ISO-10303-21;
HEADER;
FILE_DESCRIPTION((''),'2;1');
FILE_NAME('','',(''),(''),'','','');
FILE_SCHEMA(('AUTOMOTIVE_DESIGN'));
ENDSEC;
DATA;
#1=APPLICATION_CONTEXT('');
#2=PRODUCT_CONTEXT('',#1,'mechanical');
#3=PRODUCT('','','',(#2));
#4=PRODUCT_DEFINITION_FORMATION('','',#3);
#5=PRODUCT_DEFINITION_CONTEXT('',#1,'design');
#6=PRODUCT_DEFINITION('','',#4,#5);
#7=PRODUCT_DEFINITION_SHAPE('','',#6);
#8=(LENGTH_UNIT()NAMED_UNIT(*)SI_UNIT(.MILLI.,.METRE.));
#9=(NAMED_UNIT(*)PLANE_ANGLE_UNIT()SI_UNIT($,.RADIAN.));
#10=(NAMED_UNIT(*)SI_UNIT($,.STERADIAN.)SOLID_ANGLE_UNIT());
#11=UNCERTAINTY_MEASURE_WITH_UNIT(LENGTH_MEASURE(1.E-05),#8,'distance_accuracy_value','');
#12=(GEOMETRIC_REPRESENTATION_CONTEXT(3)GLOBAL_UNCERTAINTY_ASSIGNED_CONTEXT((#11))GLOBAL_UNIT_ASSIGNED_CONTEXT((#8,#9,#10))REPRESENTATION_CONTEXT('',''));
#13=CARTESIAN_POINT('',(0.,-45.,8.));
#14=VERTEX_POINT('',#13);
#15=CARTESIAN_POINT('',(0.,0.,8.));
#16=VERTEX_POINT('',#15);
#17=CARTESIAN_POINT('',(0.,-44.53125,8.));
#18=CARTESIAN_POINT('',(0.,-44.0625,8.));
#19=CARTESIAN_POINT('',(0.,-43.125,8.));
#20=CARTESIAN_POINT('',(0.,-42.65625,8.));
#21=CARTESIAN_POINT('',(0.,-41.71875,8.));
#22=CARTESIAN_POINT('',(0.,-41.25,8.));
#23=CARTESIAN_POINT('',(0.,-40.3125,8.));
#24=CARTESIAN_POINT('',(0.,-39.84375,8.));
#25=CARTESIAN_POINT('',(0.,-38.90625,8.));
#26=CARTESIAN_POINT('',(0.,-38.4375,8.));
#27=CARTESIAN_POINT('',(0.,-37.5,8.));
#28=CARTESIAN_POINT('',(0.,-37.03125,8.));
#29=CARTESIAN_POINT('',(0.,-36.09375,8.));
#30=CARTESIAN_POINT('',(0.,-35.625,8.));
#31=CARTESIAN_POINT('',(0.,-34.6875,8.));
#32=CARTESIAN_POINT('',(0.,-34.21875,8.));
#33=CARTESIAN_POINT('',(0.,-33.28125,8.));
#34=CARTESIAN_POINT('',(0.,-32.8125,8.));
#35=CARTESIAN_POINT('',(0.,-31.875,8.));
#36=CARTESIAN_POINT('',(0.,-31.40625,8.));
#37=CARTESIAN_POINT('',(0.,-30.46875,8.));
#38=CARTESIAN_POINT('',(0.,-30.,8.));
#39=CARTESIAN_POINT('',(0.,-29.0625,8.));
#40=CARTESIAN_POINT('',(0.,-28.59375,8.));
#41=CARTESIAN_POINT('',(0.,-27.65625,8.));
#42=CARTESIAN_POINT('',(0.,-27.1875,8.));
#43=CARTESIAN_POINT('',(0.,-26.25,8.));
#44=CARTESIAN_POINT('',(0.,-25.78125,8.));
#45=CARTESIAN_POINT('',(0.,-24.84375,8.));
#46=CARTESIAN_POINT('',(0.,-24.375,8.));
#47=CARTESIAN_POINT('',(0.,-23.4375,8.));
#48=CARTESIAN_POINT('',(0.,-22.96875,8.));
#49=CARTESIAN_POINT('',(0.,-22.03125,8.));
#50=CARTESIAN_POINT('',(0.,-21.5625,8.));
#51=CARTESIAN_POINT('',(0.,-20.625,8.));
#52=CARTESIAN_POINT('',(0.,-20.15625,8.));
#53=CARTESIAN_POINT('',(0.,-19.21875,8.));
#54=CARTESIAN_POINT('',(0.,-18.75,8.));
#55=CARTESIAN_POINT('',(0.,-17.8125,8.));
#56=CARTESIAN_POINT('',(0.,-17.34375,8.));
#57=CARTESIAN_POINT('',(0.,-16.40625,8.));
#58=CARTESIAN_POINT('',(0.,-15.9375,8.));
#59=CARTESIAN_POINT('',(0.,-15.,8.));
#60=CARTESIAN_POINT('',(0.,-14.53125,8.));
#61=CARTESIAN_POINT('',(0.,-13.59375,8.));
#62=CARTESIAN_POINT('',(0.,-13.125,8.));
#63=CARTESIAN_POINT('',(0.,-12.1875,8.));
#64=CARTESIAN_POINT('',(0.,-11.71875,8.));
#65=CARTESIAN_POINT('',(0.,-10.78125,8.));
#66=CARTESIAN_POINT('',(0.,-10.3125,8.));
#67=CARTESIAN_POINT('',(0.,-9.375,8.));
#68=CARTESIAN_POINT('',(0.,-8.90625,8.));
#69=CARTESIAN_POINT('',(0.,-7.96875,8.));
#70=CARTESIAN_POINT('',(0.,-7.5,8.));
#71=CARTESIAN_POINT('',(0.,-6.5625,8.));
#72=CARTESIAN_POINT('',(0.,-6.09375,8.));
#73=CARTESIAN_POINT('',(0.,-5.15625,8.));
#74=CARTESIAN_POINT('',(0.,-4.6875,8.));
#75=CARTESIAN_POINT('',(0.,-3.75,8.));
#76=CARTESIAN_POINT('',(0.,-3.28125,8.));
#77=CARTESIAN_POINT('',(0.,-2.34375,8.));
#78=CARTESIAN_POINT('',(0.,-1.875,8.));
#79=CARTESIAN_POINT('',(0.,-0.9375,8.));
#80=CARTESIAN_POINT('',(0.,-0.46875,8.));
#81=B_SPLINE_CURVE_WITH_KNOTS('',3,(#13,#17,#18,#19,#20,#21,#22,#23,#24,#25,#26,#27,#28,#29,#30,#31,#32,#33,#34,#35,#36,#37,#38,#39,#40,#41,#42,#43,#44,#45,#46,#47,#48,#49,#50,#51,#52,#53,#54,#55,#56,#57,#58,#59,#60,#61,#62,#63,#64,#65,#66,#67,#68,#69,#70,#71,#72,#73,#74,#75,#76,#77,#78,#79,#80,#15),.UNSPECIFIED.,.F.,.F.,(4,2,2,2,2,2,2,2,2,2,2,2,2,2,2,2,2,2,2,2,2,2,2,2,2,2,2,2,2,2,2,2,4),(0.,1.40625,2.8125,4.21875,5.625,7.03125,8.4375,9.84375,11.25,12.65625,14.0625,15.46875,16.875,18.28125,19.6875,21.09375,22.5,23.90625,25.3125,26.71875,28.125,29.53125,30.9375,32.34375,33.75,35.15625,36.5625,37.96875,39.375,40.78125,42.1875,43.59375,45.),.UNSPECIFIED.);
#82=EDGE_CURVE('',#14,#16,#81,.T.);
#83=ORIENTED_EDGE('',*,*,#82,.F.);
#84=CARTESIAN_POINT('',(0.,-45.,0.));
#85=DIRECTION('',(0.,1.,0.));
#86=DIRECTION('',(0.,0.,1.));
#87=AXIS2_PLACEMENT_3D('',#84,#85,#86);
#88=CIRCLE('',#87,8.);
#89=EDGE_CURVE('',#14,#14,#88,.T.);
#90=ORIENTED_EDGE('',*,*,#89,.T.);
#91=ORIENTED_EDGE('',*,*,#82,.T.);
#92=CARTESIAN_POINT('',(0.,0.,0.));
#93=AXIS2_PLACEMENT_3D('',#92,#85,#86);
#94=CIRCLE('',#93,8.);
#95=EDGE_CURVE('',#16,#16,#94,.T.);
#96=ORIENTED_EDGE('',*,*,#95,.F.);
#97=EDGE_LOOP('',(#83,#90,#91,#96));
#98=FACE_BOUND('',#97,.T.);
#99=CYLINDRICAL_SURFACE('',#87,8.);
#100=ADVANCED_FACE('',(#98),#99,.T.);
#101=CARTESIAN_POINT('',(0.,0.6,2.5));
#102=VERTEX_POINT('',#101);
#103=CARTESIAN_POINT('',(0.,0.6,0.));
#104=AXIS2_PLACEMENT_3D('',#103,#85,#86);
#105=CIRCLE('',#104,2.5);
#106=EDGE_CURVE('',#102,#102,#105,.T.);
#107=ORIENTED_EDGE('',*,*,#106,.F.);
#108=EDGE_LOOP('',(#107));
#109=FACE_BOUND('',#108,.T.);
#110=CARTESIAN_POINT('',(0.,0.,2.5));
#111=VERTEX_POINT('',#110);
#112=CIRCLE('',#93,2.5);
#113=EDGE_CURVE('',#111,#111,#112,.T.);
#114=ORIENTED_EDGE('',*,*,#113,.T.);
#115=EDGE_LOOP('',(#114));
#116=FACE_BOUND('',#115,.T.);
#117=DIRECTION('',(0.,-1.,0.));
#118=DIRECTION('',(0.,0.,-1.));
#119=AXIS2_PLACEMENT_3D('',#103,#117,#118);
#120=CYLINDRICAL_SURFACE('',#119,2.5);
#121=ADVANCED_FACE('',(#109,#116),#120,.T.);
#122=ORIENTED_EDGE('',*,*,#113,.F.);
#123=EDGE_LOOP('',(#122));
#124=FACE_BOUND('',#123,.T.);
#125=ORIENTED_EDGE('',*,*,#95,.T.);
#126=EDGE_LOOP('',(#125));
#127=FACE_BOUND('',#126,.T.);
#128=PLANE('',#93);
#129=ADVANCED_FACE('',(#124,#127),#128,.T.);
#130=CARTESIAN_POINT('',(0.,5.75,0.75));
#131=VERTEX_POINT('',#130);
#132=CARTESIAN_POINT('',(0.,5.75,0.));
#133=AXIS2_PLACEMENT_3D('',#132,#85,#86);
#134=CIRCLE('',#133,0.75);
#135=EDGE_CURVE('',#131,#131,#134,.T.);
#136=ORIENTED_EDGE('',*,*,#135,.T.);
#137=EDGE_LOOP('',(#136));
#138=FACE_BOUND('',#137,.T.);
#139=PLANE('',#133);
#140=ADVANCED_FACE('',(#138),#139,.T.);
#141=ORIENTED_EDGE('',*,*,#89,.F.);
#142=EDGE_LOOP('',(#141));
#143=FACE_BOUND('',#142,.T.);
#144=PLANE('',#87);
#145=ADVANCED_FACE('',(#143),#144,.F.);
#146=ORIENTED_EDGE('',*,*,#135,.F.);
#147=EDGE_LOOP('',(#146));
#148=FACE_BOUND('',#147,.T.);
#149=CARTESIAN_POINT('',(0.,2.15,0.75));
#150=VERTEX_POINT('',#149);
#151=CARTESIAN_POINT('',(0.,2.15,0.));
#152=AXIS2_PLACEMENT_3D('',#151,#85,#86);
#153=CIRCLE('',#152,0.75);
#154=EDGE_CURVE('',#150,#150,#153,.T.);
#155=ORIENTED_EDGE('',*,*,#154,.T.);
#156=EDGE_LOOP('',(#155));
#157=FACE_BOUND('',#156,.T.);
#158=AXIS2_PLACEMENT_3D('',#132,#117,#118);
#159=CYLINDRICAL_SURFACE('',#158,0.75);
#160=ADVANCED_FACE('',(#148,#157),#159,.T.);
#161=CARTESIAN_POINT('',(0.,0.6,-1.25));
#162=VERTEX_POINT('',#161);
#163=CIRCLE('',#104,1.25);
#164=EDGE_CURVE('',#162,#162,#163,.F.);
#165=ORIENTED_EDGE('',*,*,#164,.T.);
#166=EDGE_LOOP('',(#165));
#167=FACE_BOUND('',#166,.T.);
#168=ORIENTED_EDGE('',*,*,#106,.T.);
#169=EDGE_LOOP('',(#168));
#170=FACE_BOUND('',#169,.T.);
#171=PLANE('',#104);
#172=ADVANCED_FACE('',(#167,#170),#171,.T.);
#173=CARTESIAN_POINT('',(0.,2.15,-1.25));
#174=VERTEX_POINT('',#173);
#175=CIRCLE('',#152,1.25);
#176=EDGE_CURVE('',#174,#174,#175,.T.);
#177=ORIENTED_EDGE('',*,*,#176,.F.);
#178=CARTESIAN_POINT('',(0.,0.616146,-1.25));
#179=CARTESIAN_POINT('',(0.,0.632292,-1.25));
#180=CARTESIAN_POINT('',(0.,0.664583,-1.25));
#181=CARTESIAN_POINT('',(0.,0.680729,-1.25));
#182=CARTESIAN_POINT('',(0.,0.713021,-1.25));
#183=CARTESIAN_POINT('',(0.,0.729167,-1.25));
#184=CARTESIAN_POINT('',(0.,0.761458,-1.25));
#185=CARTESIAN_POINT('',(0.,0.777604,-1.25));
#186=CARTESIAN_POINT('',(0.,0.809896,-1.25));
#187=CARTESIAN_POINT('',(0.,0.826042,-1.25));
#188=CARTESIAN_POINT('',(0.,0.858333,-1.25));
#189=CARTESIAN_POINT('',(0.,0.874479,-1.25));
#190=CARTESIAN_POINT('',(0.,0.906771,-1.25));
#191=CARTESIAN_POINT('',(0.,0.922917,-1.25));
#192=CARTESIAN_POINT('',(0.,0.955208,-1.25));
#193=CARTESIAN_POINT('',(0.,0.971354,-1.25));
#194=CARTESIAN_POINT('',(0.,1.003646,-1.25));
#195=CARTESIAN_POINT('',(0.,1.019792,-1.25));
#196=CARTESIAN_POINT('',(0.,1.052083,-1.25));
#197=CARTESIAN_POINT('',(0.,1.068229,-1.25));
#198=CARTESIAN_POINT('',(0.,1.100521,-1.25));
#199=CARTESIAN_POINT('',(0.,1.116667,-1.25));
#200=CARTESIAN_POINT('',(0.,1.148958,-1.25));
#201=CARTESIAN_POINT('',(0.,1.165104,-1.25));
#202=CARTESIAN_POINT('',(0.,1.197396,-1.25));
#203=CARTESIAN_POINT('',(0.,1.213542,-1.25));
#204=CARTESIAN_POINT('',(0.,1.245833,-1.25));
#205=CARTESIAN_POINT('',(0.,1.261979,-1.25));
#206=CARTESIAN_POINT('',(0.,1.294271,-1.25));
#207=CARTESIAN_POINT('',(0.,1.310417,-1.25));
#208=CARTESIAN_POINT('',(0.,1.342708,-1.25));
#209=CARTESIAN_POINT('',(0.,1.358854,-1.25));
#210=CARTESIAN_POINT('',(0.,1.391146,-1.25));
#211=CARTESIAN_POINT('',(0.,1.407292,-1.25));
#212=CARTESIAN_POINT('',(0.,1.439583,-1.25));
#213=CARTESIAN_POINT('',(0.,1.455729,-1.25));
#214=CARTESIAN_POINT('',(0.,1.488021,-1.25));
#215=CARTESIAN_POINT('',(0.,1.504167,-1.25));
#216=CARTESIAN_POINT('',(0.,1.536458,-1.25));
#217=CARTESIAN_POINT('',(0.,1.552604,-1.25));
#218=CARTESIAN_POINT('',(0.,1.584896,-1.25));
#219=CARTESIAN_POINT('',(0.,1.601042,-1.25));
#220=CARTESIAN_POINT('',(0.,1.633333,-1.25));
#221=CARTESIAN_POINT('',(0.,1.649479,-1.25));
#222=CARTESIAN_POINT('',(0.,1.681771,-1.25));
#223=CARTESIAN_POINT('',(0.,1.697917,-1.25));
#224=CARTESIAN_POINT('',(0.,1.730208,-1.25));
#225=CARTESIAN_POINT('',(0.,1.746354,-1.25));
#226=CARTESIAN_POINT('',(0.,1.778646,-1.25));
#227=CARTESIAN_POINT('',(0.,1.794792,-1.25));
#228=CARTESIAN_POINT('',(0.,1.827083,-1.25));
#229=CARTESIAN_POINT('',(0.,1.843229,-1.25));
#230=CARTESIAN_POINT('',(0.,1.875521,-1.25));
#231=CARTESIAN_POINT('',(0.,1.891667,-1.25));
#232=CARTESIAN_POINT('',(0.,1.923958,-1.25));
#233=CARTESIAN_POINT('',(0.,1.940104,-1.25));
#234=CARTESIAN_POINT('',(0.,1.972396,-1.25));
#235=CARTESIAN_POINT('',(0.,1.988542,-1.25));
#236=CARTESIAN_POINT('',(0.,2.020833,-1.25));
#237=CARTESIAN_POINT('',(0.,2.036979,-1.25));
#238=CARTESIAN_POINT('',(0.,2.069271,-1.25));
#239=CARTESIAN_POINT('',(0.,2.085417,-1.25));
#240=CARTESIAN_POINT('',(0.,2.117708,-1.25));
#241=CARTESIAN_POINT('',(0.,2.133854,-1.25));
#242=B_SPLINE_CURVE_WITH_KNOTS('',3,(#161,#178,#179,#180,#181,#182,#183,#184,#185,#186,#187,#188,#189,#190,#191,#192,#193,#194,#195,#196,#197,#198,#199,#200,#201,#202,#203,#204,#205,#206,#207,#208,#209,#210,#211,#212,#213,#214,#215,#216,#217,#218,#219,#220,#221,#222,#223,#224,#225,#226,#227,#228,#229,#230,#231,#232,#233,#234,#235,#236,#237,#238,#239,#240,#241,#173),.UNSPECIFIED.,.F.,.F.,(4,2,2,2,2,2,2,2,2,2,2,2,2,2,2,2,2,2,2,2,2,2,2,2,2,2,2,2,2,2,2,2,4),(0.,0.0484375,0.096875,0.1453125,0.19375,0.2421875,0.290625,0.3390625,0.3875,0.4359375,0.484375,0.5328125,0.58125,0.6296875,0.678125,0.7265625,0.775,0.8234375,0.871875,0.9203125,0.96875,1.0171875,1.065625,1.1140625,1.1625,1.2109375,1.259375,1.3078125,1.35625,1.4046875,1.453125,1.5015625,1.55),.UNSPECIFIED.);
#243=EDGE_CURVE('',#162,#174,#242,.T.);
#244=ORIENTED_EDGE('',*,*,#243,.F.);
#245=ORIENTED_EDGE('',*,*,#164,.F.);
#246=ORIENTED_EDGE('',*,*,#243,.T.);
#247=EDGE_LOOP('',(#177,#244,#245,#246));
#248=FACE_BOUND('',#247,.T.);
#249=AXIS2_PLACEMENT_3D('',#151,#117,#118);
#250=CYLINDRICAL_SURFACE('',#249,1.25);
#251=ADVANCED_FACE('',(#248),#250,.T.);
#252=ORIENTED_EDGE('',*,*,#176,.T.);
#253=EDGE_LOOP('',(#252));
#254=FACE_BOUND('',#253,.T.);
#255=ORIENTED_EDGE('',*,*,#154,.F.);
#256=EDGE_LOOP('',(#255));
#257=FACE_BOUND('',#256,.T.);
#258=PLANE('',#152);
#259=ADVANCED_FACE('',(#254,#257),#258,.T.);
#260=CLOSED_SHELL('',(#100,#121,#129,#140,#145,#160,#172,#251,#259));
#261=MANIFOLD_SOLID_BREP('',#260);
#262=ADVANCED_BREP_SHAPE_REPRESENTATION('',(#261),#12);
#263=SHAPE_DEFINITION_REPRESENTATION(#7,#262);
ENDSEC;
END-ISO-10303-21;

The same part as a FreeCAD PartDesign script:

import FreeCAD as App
import Part
import Sketcher

V = App.Vector

doc = App.newDocument("Part")
body = doc.addObject("PartDesign::Body", "Body")

sketch1 = body.newObject("Sketcher::SketchObject", "Sketch")
sketch1.AttachmentSupport = (doc.getObject("XZ_Plane"), [""])
sketch1.MapMode = "FlatFace"
sketch1.addGeometry(Part.Circle(V(0, 0, 0), V(0, 0, 1), 8), False)
sketch1.addConstraint([
    Sketcher.Constraint("Coincident", 0, 3, -1, 1),
    Sketcher.Constraint("Diameter", 0, 16.0),
])
pad1 = body.newObject("PartDesign::Pad", "Pad")
pad1.Profile = sketch1
pad1.Length = 45

sketch2 = body.newObject("Sketcher::SketchObject", "Sketch001")
sketch2.AttachmentSupport = (doc.getObject("XZ_Plane"), [""])
sketch2.MapMode = "FlatFace"
sketch2.addGeometry(Part.Circle(V(0, 0, 0), V(0, 0, 1), 2.5), False)
sketch2.addConstraint([
    Sketcher.Constraint("Coincident", 0, 3, -1, 1),
    Sketcher.Constraint("Diameter", 0, 5.0),
])
pad2 = body.newObject("PartDesign::Pad", "Pad001")
pad2.Profile = sketch2
pad2.Length = 0.6
pad2.Reversed = True

sketch3 = body.newObject("Sketcher::SketchObject", "Sketch002")
sketch3.AttachmentSupport = (doc.getObject("XZ_Plane"), [""])
sketch3.MapMode = "FlatFace"
sketch3.addGeometry(Part.Circle(V(0, 0, 0), V(0, 0, 1), 0.75), False)
sketch3.addConstraint([
    Sketcher.Constraint("Coincident", 0, 3, -1, 1),
    Sketcher.Constraint("Diameter", 0, 1.5),
])
pad3 = body.newObject("PartDesign::Pad", "Pad002")
pad3.Profile = sketch3
pad3.Length = 5.75
pad3.Reversed = True

sketch4 = body.newObject("Sketcher::SketchObject", "Sketch003")
sketch4.AttachmentSupport = (doc.getObject("XZ_Plane"), [""])
sketch4.MapMode = "FlatFace"
sketch4.addGeometry(Part.Circle(V(0, 0, 0), V(0, 0, 1), 1.25), False)
sketch4.addConstraint([
    Sketcher.Constraint("Coincident", 0, 3, -1, 1),
    Sketcher.Constraint("Diameter", 0, 2.5),
])
pad4 = body.newObject("PartDesign::Pad", "Pad003")
pad4.Profile = sketch4
pad4.Length = 2.15
pad4.Reversed = True

doc.recompute()
